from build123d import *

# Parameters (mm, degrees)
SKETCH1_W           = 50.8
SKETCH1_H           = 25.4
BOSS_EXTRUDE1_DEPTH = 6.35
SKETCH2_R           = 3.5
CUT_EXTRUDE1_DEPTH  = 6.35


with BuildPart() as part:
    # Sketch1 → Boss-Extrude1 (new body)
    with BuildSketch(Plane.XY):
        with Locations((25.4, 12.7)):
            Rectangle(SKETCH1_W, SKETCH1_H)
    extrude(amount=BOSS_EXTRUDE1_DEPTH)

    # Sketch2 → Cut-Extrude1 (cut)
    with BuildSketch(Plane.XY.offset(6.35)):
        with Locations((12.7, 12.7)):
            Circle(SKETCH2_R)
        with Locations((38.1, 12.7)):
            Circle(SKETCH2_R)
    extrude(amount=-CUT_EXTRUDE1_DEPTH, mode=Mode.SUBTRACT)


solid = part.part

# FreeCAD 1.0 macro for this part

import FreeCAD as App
import Part
import Sketcher
from FreeCAD import Vector
Q = App.Units.Quantity


def add_polygon(sketch, points):
    """Adds a closed chain of lines whose ends are joined by coincident constraints."""
    first, n = sketch.GeometryCount, len(points)
    for a, b in zip(points, points[1:] + points[:1]):
        sketch.addGeometry(Part.LineSegment(App.Vector(*a, 0), App.Vector(*b, 0)), False)
    for i in range(n):
        sketch.addConstraint(Sketcher.Constraint("Coincident", first + i, 2, first + (i + 1) % n, 1))

doc = App.newDocument("Part")
body = doc.addObject("PartDesign::Body", "Body")

# Sketch on XY plane
sketch1 = doc.addObject("Sketcher::SketchObject", "Sketch")
body.addObject(sketch1)
sketch1.AttachmentSupport = (doc.XY_Plane, [""])
sketch1.MapMode = "FlatFace"
add_polygon(sketch1, [(0, 25), (0, 0), (51, 0), (51, 25)])  # lines 0-3
sketch1.addConstraint(Sketcher.Constraint("Vertical", 0))
sketch1.addConstraint(Sketcher.Constraint("Horizontal", 1))
sketch1.addConstraint(Sketcher.Constraint("Vertical", 2))
sketch1.addConstraint(Sketcher.Constraint("Horizontal", 3))
sketch1.addConstraint(Sketcher.Constraint("Coincident", 0, 2, -1, 1))
sketch1.addConstraint(Sketcher.Constraint("DistanceX", 1, 1, 1, 2, Q("2 in")))
sketch1.addConstraint(Sketcher.Constraint("DistanceY", 0, 2, 0, 1, Q("1 in")))
pad1 = doc.addObject("PartDesign::Pad", "Pad")
body.addObject(pad1)
pad1.Profile = sketch1
pad1.Length = Q("0.25 in")

# Sketch on XY plane
sketch2 = doc.addObject("Sketcher::SketchObject", "Sketch001")
body.addObject(sketch2)
sketch2.AttachmentSupport = (doc.XY_Plane, [""])
sketch2.MapMode = "FlatFace"
sketch2.AttachmentOffset = App.Placement(Vector(0, 0, 0.25 * 25.4), App.Rotation())
sketch2.addGeometry(Part.Circle(Vector(12.7, 12.7, 0), Vector(0, 0, 1), 3.5), False)
sketch2.addGeometry(Part.Circle(Vector(38.1, 12.7, 0), Vector(0, 0, 1), 3.5), False)
sketch2.addConstraint(Sketcher.Constraint("Equal", 0, 1))
sketch2.addConstraint(Sketcher.Constraint("Horizontal", 0, 3, 1, 3))
sketch2.addConstraint(Sketcher.Constraint("DistanceX", 0, 3, 1, 3, Q("1 in")))
sketch2.addConstraint(Sketcher.Constraint("DistanceX", -1, 1, 0, 3, Q("0.5 in")))
sketch2.addConstraint(Sketcher.Constraint("DistanceY", -1, 1, 0, 3, Q("0.5 in")))
sketch2.addConstraint(Sketcher.Constraint("Diameter", 0, Q("7 mm")))
pocket1 = doc.addObject("PartDesign::Pocket", "Pocket")
body.addObject(pocket1)
pocket1.Profile = sketch2
pocket1.Length = Q("0.25 in")

doc.recompute()
